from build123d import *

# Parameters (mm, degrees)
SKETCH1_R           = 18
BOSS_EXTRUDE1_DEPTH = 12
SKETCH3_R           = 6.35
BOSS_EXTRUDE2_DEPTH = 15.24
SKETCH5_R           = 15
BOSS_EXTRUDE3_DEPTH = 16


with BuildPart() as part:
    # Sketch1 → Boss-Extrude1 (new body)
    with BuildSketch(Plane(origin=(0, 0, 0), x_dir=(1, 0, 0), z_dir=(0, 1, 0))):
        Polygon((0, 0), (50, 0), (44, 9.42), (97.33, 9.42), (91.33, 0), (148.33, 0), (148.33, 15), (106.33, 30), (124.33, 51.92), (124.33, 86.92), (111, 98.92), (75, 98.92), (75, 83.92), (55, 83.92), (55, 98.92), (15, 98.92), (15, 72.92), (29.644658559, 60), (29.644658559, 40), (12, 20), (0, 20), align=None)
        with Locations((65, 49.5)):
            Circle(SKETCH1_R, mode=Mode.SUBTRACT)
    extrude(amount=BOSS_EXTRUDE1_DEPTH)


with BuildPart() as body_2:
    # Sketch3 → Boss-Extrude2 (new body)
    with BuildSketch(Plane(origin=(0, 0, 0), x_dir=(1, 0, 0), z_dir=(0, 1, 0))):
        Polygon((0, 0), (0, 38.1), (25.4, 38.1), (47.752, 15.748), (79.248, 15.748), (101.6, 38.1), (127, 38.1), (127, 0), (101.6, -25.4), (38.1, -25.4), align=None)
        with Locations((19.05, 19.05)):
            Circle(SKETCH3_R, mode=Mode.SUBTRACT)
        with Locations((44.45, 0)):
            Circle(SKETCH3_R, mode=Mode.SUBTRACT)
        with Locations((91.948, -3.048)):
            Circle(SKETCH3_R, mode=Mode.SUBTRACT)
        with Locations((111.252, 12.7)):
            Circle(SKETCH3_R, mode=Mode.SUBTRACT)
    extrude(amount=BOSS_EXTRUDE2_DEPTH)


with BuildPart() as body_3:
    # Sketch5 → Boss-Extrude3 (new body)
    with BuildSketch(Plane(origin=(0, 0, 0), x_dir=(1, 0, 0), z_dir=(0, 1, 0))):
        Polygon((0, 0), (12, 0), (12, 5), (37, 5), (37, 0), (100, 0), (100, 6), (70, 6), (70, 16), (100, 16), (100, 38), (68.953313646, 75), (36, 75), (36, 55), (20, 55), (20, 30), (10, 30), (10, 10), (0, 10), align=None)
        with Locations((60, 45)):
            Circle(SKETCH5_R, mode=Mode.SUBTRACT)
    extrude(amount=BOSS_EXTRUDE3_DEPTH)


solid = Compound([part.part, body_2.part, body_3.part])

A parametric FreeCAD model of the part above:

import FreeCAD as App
import Part
import Sketcher
from FreeCAD import Vector
Q = App.Units.Quantity


def add_polygon(sketch, points):
    """Adds a closed chain of lines whose ends are joined by coincident constraints."""
    first, n = sketch.GeometryCount, len(points)
    for a, b in zip(points, points[1:] + points[:1]):
        sketch.addGeometry(Part.LineSegment(App.Vector(*a, 0), App.Vector(*b, 0)), False)
    for i in range(n):
        sketch.addConstraint(Sketcher.Constraint("Coincident", first + i, 2, first + (i + 1) % n, 1))

doc = App.newDocument("Part")
body = doc.addObject("PartDesign::Body", "Body")

sketch1 = body.newObject("Sketcher::SketchObject", "Sketch")
sketch1.AttachmentSupport = (doc.getObject("XZ_Plane"), [""])
sketch1.MapMode = "FlatFace"
add_polygon(sketch1, [(0, 0), (50, 0), (44, -9), (97, -9), (91, 0), (148, 0), (148, -15), (106, -30), (124, -52), (124, -87), (111, -99), (75, -99), (75, -84), (55, -84), (55, -99), (15, -99), (15, -73), (30, -60), (30, -40), (12, -20), (0, -20)])
sketch1.addGeometry(Part.Circle(Vector(65, -50, 0), Vector(0, 0, 1), 18), False)
sketch1.addConstraint([
    Sketcher.Constraint("Horizontal", 0),
    Sketcher.Constraint("Horizontal", 2),
    Sketcher.Constraint("Horizontal", 4),
    Sketcher.Constraint("Vertical", 5),
    Sketcher.Constraint("Vertical", 8),
    Sketcher.Constraint("Horizontal", 10),
    Sketcher.Constraint("Vertical", 11),
    Sketcher.Constraint("Horizontal", 12),
    Sketcher.Constraint("Vertical", 13),
    Sketcher.Constraint("Horizontal", 14),
    Sketcher.Constraint("Vertical", 15),
    Sketcher.Constraint("Vertical", 17),
    Sketcher.Constraint("Horizontal", 19),
    Sketcher.Constraint("Vertical", 20),
    Sketcher.Constraint("Coincident", 20, 2, -1, 1),
    Sketcher.Constraint("PointOnObject", 3, 2, -1),
    Sketcher.Constraint("Perpendicular", 16, 18),
    Sketcher.Constraint("Horizontal", 10, 2, 13, 2),
    Sketcher.Constraint("Equal", 5, 11),
    Sketcher.Constraint("Equal", 12, 17),
    Sketcher.Constraint("Equal", 17, 20),
    Sketcher.Constraint("Equal", 1, 3),
    Sketcher.Constraint("Diameter", 21, Q("36 mm")),
    Sketcher.Constraint("DistanceX", 0, 1, 0, 2, Q("50 mm")),
    Sketcher.Constraint("DistanceX", 4, 1, 4, 2, Q("57 mm")),
    Sketcher.Constraint("DistanceX", 10, 2, 10, 1, Q("36 mm")),
    Sketcher.Constraint("DistanceX", 12, 2, 12, 1, Q("20 mm")),
    Sketcher.Constraint("DistanceX", 14, 2, 14, 1, Q("40 mm")),
    Sketcher.Constraint("DistanceX", 19, 2, 19, 1, Q("12 mm")),
    Sketcher.Constraint("DistanceY", 5, 2, 5, 1, Q("15 mm")),
    Sketcher.Constraint("DistanceY", 8, 2, 8, 1, Q("35 mm")),
    Sketcher.Constraint("DistanceY", 15, 1, 15, 2, Q("26 mm")),
    Sketcher.Constraint("DistanceX", -1, 1, 21, 3, Q("65 mm")),
    Sketcher.Constraint("DistanceX", -1, 1, 1, 2, Q("44 mm")),
    Sketcher.Constraint("DistanceY", 6, 2, -1, 1, Q("30 mm")),
    Sketcher.Constraint("DistanceX", -1, 1, 9, 2, Q("111 mm")),
    Sketcher.Constraint("DistanceY", 16, 2, -1, 1, Q("60 mm")),
    Sketcher.Constraint("DistanceX", 2, 2, 6, 2, Q("9 mm")),
    Sketcher.Constraint("DistanceX", 6, 2, 7, 2, Q("18 mm")),
    Sketcher.Constraint("DistanceY", 9, 2, 8, 2, Q("12 mm")),
    Sketcher.Constraint("DistanceX", 2, 1, 2, 2, Q("53.33 mm")),
    Sketcher.Constraint("DistanceY", 21, 3, -1, 1, Q("49.5 mm")),
    Sketcher.Constraint("DistanceY", 7, 2, 2, 2, Q("42.5 mm")),
    Sketcher.Constraint("DistanceY", 1, 2, -1, 1, Q("9.42 mm")),
])
pad1 = body.newObject("PartDesign::Pad", "Pad")
pad1.Profile = sketch1
pad1.Length = 12
pad1.Reversed = True
body2 = doc.addObject("PartDesign::Body", "Body001")

sketch2 = body2.newObject("Sketcher::SketchObject", "Sketch001")
sketch2.AttachmentSupport = (doc.getObject("XZ_Plane001"), [""])
sketch2.MapMode = "FlatFace"
add_polygon(sketch2, [(0, -38), (0, 0), (38, 25), (102, 25), (127, 0), (127, -38), (102, -38), (79, -16), (48, -16), (25, -38)])
sketch2.addGeometry(Part.Circle(Vector(92, 3, 0), Vector(0, 0, 1), 6), False)
sketch2.addGeometry(Part.Circle(Vector(44, 0, 0), Vector(0, 0, 1), 6), False)
sketch2.addGeometry(Part.Circle(Vector(111, -13, 0), Vector(0, 0, 1), 6), False)
sketch2.addGeometry(Part.Circle(Vector(19, -19, 0), Vector(0, 0, 1), 6), False)
sketch2.addConstraint([
    Sketcher.Constraint("Vertical", 0),
    Sketcher.Constraint("Horizontal", 2),
    Sketcher.Constraint("Vertical", 4),
    Sketcher.Constraint("Horizontal", 5),
    Sketcher.Constraint("Horizontal", 7),
    Sketcher.Constraint("Horizontal", 9),
    Sketcher.Constraint("Coincident", 0, 2, -1, 1),
    Sketcher.Constraint("Equal", 10, 11),
    Sketcher.Constraint("Equal", 11, 12),
    Sketcher.Constraint("Equal", 12, 13),
    Sketcher.Constraint("PointOnObject", 11, 3, -1),
    Sketcher.Constraint("PointOnObject", 3, 2, -1),
    Sketcher.Constraint("Parallel", 3, 6),
    Sketcher.Constraint("Perpendicular", 6, 8),
    Sketcher.Constraint("Horizontal", 5, 2, 8, 2),
    Sketcher.Constraint("Vertical", 2, 2, 5, 2),
    Sketcher.Constraint("Equal", 5, 9),
    Sketcher.Constraint("Equal", 6, 8),
    Sketcher.Constraint("Diameter", 10, Q("12.7 mm")),
    Sketcher.Constraint("DistanceX", 2, 1, 2, 2, Q("63.5 mm")),
    Sketcher.Constraint("DistanceX", 5, 2, 5, 1, Q("25.4 mm")),
    Sketcher.Constraint("DistanceY", 0, 1, 0, 2, Q("38.1 mm")),
    Sketcher.Constraint("DistanceX", -1, 1, 3, 2, Q("127 mm")),
    Sketcher.Constraint("DistanceY", 12, 3, -1, 1, Q("12.7 mm")),
    Sketcher.Constraint("DistanceX", 13, 3, 11, 3, Q("25.4 mm")),
    Sketcher.Constraint("DistanceX", 6, 2, 10, 3, Q("12.7 mm")),
    Sketcher.Constraint("DistanceX", 7, 2, 7, 1, Q("31.496 mm")),
    Sketcher.Constraint("DistanceX", -1, 1, 11, 3, Q("44.45 mm")),
    Sketcher.Constraint("DistanceY", 13, 3, -1, 1, Q("19.05 mm")),
    Sketcher.Constraint("DistanceY", -1, 1, 10, 3, Q("3.048 mm")),
    Sketcher.Constraint("DistanceX", -1, 1, 12, 3, Q("111.252 mm")),
])
pad2 = body2.newObject("PartDesign::Pad", "Pad001")
pad2.Profile = sketch2
pad2.Length = 15.24
pad2.Reversed = True
body3 = doc.addObject("PartDesign::Body", "Body002")

sketch3 = body3.newObject("Sketcher::SketchObject", "Sketch002")
sketch3.AttachmentSupport = (doc.getObject("XZ_Plane002"), [""])
sketch3.MapMode = "FlatFace"
add_polygon(sketch3, [(0, 0), (12, 0), (12, -5), (37, -5), (37, 0), (100, 0), (100, -6), (70, -6), (70, -16), (100, -16), (100, -38), (69, -75), (36, -75), (36, -55), (20, -55), (20, -30), (10, -30), (10, -10), (0, -10)])
sketch3.addGeometry(Part.Circle(Vector(60, -45, 0), Vector(0, 0, 1), 15), False)
sketch3.addConstraint([
    Sketcher.Constraint("Horizontal", 0),
    Sketcher.Constraint("Vertical", 1),
    Sketcher.Constraint("Horizontal", 2),
    Sketcher.Constraint("Vertical", 3),
    Sketcher.Constraint("Horizontal", 4),
    Sketcher.Constraint("Vertical", 5),
    Sketcher.Constraint("Horizontal", 6),
    Sketcher.Constraint("Vertical", 7),
    Sketcher.Constraint("Horizontal", 8),
    Sketcher.Constraint("Vertical", 9),
    Sketcher.Constraint("Horizontal", 11),
    Sketcher.Constraint("Vertical", 12),
    Sketcher.Constraint("Horizontal", 13),
    Sketcher.Constraint("Vertical", 14),
    Sketcher.Constraint("Horizontal", 15),
    Sketcher.Constraint("Vertical", 16),
    Sketcher.Constraint("Horizontal", 17),
    Sketcher.Constraint("Vertical", 18),
    Sketcher.Constraint("Coincident", 18, 2, -1, 1),
    Sketcher.Constraint("PointOnObject", 3, 2, -1),
    Sketcher.Constraint("Vertical", 5, 2, 8, 2),
    Sketcher.Constraint("Equal", 15, 17),
    Sketcher.Constraint("Equal", 17, 7),
    Sketcher.Constraint("Equal", 2, 14),
    Sketcher.Constraint("Equal", 12, 16),
    Sketcher.Constraint("Equal", 7, 18),
    Sketcher.Constraint("Diameter", 19, Q("30 mm")),
    Sketcher.Constraint("DistanceX", 0, 1, 0, 2, Q("12 mm")),
    Sketcher.Constraint("DistanceX", 2, 1, 2, 2, Q("25 mm")),
    Sketcher.Constraint("DistanceX", 4, 1, 4, 2, Q("63 mm")),
    Sketcher.Constraint("DistanceX", 6, 2, 6, 1, Q("30 mm")),
    Sketcher.Constraint("DistanceX", 13, 2, 13, 1, Q("16 mm")),
    Sketcher.Constraint("DistanceX", 15, 2, 15, 1, Q("10 mm")),
    Sketcher.Constraint("DistanceY", 1, 2, 1, 1, Q("5 mm")),
    Sketcher.Constraint("DistanceY", 5, 2, 5, 1, Q("6 mm")),
    Sketcher.Constraint("DistanceY", 9, 2, 9, 1, Q("22 mm")),
    Sketcher.Constraint("DistanceY", 12, 1, 12, 2, Q("20 mm")),
    Sketcher.Constraint("Angle", 10, Q("-130 deg")),
    Sketcher.Constraint("DistanceX", -1, 1, 19, 3, Q("60 mm")),
    Sketcher.Constraint("DistanceY", 19, 3, -1, 1, Q("45 mm")),
])
pad3 = body3.newObject("PartDesign::Pad", "Pad002")
pad3.Profile = sketch3
pad3.Length = 16
pad3.Reversed = True

doc.recompute()
